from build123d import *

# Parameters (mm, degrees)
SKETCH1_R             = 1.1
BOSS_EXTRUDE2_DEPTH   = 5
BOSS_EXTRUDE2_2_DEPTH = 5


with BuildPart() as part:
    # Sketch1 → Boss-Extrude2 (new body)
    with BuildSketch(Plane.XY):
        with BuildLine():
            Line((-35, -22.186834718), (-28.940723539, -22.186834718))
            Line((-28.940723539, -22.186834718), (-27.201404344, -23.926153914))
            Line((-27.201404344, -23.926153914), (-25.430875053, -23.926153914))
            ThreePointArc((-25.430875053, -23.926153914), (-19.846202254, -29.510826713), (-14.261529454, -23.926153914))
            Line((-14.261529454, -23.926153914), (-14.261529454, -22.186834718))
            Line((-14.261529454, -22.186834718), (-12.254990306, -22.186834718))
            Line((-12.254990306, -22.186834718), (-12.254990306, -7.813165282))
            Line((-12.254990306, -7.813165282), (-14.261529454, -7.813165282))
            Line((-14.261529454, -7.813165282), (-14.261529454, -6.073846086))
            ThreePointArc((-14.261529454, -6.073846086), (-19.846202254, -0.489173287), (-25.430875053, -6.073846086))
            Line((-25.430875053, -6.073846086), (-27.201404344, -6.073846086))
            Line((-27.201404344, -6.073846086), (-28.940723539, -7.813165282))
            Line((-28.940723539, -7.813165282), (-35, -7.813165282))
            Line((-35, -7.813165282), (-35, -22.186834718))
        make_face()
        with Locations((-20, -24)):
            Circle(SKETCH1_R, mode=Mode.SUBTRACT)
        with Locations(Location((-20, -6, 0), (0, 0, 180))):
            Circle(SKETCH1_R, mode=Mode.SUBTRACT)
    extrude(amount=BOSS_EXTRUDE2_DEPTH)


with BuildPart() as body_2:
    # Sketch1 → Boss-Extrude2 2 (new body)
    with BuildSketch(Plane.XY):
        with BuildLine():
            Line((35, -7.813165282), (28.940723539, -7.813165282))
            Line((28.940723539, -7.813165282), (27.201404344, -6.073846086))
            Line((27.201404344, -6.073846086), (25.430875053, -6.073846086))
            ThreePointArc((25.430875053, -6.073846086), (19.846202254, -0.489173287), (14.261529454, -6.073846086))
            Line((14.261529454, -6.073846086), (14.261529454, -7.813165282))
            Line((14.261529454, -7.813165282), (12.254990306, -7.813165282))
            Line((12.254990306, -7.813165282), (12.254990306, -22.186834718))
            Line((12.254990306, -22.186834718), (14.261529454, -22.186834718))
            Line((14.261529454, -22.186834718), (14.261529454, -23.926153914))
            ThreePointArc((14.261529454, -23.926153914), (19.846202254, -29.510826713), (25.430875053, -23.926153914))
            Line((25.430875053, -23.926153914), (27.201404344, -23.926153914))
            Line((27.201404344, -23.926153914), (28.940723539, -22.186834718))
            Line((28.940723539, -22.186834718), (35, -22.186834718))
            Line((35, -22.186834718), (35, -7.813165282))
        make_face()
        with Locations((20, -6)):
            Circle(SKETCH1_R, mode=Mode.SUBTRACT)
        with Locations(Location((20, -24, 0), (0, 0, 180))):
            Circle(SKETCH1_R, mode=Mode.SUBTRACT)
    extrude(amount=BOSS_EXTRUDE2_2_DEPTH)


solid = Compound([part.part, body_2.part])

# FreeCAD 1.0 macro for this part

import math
import FreeCAD as App
import Part
import Sketcher
Q = App.Units.Quantity

doc = App.newDocument("Part")
body = doc.addObject("PartDesign::Body", "Body")

sketch1 = body.newObject("Sketcher::SketchObject", "Sketch")
sketch1.AttachmentSupport = (doc.getObject("XY_Plane"), [""])
sketch1.MapMode = "FlatFace"
sketch1.addGeometry([
    Part.LineSegment(App.Vector(-35, -22.2, 0), App.Vector(-28.9, -22.2, 0)),
    Part.LineSegment(App.Vector(-28.9, -22.2, 0), App.Vector(-27.2, -23.9, 0)),
    Part.LineSegment(App.Vector(-27.2, -23.9, 0), App.Vector(-25.4, -23.9, 0)),
    Part.ArcOfCircle(Part.Circle(App.Vector(-19.8, -23.9, 0), App.Vector(0, 0, 1), 5.6), math.radians(-180), math.radians(0)),
    Part.LineSegment(App.Vector(-14.3, -23.9, 0), App.Vector(-14.3, -22.2, 0)),
    Part.LineSegment(App.Vector(-14.3, -22.2, 0), App.Vector(-12.3, -22.2, 0)),
    Part.LineSegment(App.Vector(-12.3, -22.2, 0), App.Vector(-12.3, -7.8, 0)),
    Part.LineSegment(App.Vector(-12.3, -7.8, 0), App.Vector(-14.3, -7.8, 0)),
    Part.LineSegment(App.Vector(-14.3, -7.8, 0), App.Vector(-14.3, -6.1, 0)),
    Part.ArcOfCircle(Part.Circle(App.Vector(-19.8, -6.1, 0), App.Vector(0, 0, 1), 5.6), math.radians(0), math.radians(180)),
    Part.LineSegment(App.Vector(-25.4, -6.1, 0), App.Vector(-27.2, -6.1, 0)),
    Part.LineSegment(App.Vector(-27.2, -6.1, 0), App.Vector(-28.9, -7.8, 0)),
    Part.LineSegment(App.Vector(-28.9, -7.8, 0), App.Vector(-35, -7.8, 0)),
    Part.LineSegment(App.Vector(-35, -7.8, 0), App.Vector(-35, -22.2, 0)),
    Part.Circle(App.Vector(-20, -24, 0), App.Vector(0, 0, 1), 1.1),
    Part.Circle(App.Vector(-20, -6, 0), App.Vector(0, 0, 1), 1.1),
], False)
sketch1.addConstraint([
    Sketcher.Constraint("Coincident", 0, 2, 1, 1),
    Sketcher.Constraint("Coincident", 1, 2, 2, 1),
    Sketcher.Constraint("Coincident", 2, 2, 3, 1),
    Sketcher.Constraint("Tangent", 3, 2, 4, 1),
    Sketcher.Constraint("Coincident", 4, 2, 5, 1),
    Sketcher.Constraint("Coincident", 5, 2, 6, 1),
    Sketcher.Constraint("Coincident", 6, 2, 7, 1),
    Sketcher.Constraint("Coincident", 7, 2, 8, 1),
    Sketcher.Constraint("Tangent", 8, 2, 9, 1),
    Sketcher.Constraint("Coincident", 9, 2, 10, 1),
    Sketcher.Constraint("Coincident", 10, 2, 11, 1),
    Sketcher.Constraint("Coincident", 11, 2, 12, 1),
    Sketcher.Constraint("Coincident", 12, 2, 13, 1),
    Sketcher.Constraint("Coincident", 13, 2, 0, 1),
    Sketcher.Constraint("Horizontal", 0),
    Sketcher.Constraint("Horizontal", 2),
    Sketcher.Constraint("Vertical", 4),
    Sketcher.Constraint("Horizontal", 5),
    Sketcher.Constraint("Vertical", 6),
    Sketcher.Constraint("Horizontal", 7),
    Sketcher.Constraint("Vertical", 8),
    Sketcher.Constraint("Horizontal", 10),
    Sketcher.Constraint("Horizontal", 12),
    Sketcher.Constraint("Vertical", 13),
    Sketcher.Constraint("Equal", 3, 9),
    Sketcher.Constraint("Equal", 14, 15),
    Sketcher.Constraint("Perpendicular", 1, 11),
    Sketcher.Constraint("Horizontal", 3, 3, 1, 2),
    Sketcher.Constraint("Horizontal", 0, 2, 4, 2),
    Sketcher.Constraint("Horizontal", 8, 2, 9, 2),
    Sketcher.Constraint("Horizontal", 7, 2, 11, 2),
    Sketcher.Constraint("Vertical", 3, 3, 9, 3),
    Sketcher.Constraint("Vertical", 14, 3, 15, 3),
    Sketcher.Constraint("Vertical", 1, 2, 10, 2),
    Sketcher.Constraint("Vertical", 0, 2, 11, 2),
    Sketcher.Constraint("Equal", 4, 8),
    Sketcher.Constraint("Diameter", 14, Q("2.2 mm")),
    Sketcher.Constraint("DistanceX", 14, 3, -1, 1, Q("20 mm")),
    Sketcher.Constraint("DistanceY", 14, 3, -1, 1, Q("24 mm")),
    Sketcher.Constraint("DistanceY", 15, 3, -1, 1, Q("6 mm")),
    Sketcher.Constraint("DistanceX", 12, 2, -1, 1, Q("35 mm")),
    Sketcher.Constraint("Radius", 3, Q("5.584673 mm")),
    Sketcher.Constraint("DistanceX", 2, 1, 2, 2, Q("1.770529 mm")),
    Sketcher.Constraint("DistanceX", 5, 1, 5, 2, Q("2.006539 mm")),
    Sketcher.Constraint("DistanceY", 4, 1, 4, 2, Q("1.739319 mm")),
    Sketcher.Constraint("DistanceY", 6, 1, 6, 2, Q("14.373669 mm")),
    Sketcher.Constraint("DistanceX", 0, 1, 0, 2, Q("6.059276 mm")),
    Sketcher.Constraint("DistanceY", 3, 3, -1, 1, Q("23.926154 mm")),
])
pad1 = body.newObject("PartDesign::Pad", "Pad")
pad1.Profile = sketch1
pad1.Length = 5
body2 = doc.addObject("PartDesign::Body", "Body001")

sketch2 = body2.newObject("Sketcher::SketchObject", "Sketch001")
sketch2.AttachmentSupport = (doc.getObject("XY_Plane001"), [""])
sketch2.MapMode = "FlatFace"
sketch2.addGeometry([
    Part.LineSegment(App.Vector(35, -7.8, 0), App.Vector(28.9, -7.8, 0)),
    Part.LineSegment(App.Vector(28.9, -7.8, 0), App.Vector(27.2, -6.1, 0)),
    Part.LineSegment(App.Vector(27.2, -6.1, 0), App.Vector(25.4, -6.1, 0)),
    Part.ArcOfCircle(Part.Circle(App.Vector(19.8, -6.1, 0), App.Vector(0, 0, 1), 5.6), math.radians(0), math.radians(180)),
    Part.LineSegment(App.Vector(14.3, -6.1, 0), App.Vector(14.3, -7.8, 0)),
    Part.LineSegment(App.Vector(14.3, -7.8, 0), App.Vector(12.3, -7.8, 0)),
    Part.LineSegment(App.Vector(12.3, -7.8, 0), App.Vector(12.3, -22.2, 0)),
    Part.LineSegment(App.Vector(12.3, -22.2, 0), App.Vector(14.3, -22.2, 0)),
    Part.LineSegment(App.Vector(14.3, -22.2, 0), App.Vector(14.3, -23.9, 0)),
    Part.ArcOfCircle(Part.Circle(App.Vector(19.8, -23.9, 0), App.Vector(0, 0, 1), 5.6), math.radians(-180), math.radians(0)),
    Part.LineSegment(App.Vector(25.4, -23.9, 0), App.Vector(27.2, -23.9, 0)),
    Part.LineSegment(App.Vector(27.2, -23.9, 0), App.Vector(28.9, -22.2, 0)),
    Part.LineSegment(App.Vector(28.9, -22.2, 0), App.Vector(35, -22.2, 0)),
    Part.LineSegment(App.Vector(35, -22.2, 0), App.Vector(35, -7.8, 0)),
    Part.Circle(App.Vector(20, -24, 0), App.Vector(0, 0, 1), 1.1),
    Part.Circle(App.Vector(20, -6, 0), App.Vector(0, 0, 1), 1.1),
], False)
sketch2.addConstraint([
    Sketcher.Constraint("Coincident", 0, 2, 1, 1),
    Sketcher.Constraint("Coincident", 1, 2, 2, 1),
    Sketcher.Constraint("Coincident", 2, 2, 3, 1),
    Sketcher.Constraint("Tangent", 3, 2, 4, 1),
    Sketcher.Constraint("Coincident", 4, 2, 5, 1),
    Sketcher.Constraint("Coincident", 5, 2, 6, 1),
    Sketcher.Constraint("Coincident", 6, 2, 7, 1),
    Sketcher.Constraint("Coincident", 7, 2, 8, 1),
    Sketcher.Constraint("Tangent", 8, 2, 9, 1),
    Sketcher.Constraint("Coincident", 9, 2, 10, 1),
    Sketcher.Constraint("Coincident", 10, 2, 11, 1),
    Sketcher.Constraint("Coincident", 11, 2, 12, 1),
    Sketcher.Constraint("Coincident", 12, 2, 13, 1),
    Sketcher.Constraint("Coincident", 13, 2, 0, 1),
    Sketcher.Constraint("Horizontal", 0),
    Sketcher.Constraint("Horizontal", 2),
    Sketcher.Constraint("Vertical", 4),
    Sketcher.Constraint("Horizontal", 5),
    Sketcher.Constraint("Vertical", 6),
    Sketcher.Constraint("Horizontal", 7),
    Sketcher.Constraint("Vertical", 8),
    Sketcher.Constraint("Horizontal", 10),
    Sketcher.Constraint("Horizontal", 12),
    Sketcher.Constraint("Vertical", 13),
    Sketcher.Constraint("Equal", 3, 9),
    Sketcher.Constraint("Equal", 14, 15),
    Sketcher.Constraint("Perpendicular", 1, 11),
    Sketcher.Constraint("Horizontal", 3, 3, 1, 2),
    Sketcher.Constraint("Horizontal", 0, 2, 4, 2),
    Sketcher.Constraint("Horizontal", 8, 2, 9, 2),
    Sketcher.Constraint("Horizontal", 7, 2, 11, 2),
    Sketcher.Constraint("Vertical", 3, 3, 9, 3),
    Sketcher.Constraint("Vertical", 14, 3, 15, 3),
    Sketcher.Constraint("Vertical", 1, 2, 10, 2),
    Sketcher.Constraint("Vertical", 0, 2, 11, 2),
    Sketcher.Constraint("Equal", 4, 8),
    Sketcher.Constraint("Diameter", 14, Q("2.2 mm")),
    Sketcher.Constraint("DistanceX", -1, 1, 14, 3, Q("20 mm")),
    Sketcher.Constraint("DistanceY", 14, 3, -1, 1, Q("24 mm")),
    Sketcher.Constraint("DistanceY", 15, 3, -1, 1, Q("6 mm")),
    Sketcher.Constraint("DistanceX", -1, 1, 12, 2, Q("35 mm")),
    Sketcher.Constraint("Radius", 3, Q("5.584673 mm")),
    Sketcher.Constraint("DistanceX", 2, 2, 2, 1, Q("1.770529 mm")),
    Sketcher.Constraint("DistanceX", 5, 2, 5, 1, Q("2.006539 mm")),
    Sketcher.Constraint("DistanceY", 4, 2, 4, 1, Q("1.739319 mm")),
    Sketcher.Constraint("DistanceY", 6, 2, 6, 1, Q("14.373669 mm")),
    Sketcher.Constraint("DistanceX", 0, 2, 0, 1, Q("6.059276 mm")),
    Sketcher.Constraint("DistanceY", 3, 3, -1, 1, Q("6.073846 mm")),
])
pad2 = body2.newObject("PartDesign::Pad", "Pad001")
pad2.Profile = sketch2
pad2.Length = 5

doc.recompute()
